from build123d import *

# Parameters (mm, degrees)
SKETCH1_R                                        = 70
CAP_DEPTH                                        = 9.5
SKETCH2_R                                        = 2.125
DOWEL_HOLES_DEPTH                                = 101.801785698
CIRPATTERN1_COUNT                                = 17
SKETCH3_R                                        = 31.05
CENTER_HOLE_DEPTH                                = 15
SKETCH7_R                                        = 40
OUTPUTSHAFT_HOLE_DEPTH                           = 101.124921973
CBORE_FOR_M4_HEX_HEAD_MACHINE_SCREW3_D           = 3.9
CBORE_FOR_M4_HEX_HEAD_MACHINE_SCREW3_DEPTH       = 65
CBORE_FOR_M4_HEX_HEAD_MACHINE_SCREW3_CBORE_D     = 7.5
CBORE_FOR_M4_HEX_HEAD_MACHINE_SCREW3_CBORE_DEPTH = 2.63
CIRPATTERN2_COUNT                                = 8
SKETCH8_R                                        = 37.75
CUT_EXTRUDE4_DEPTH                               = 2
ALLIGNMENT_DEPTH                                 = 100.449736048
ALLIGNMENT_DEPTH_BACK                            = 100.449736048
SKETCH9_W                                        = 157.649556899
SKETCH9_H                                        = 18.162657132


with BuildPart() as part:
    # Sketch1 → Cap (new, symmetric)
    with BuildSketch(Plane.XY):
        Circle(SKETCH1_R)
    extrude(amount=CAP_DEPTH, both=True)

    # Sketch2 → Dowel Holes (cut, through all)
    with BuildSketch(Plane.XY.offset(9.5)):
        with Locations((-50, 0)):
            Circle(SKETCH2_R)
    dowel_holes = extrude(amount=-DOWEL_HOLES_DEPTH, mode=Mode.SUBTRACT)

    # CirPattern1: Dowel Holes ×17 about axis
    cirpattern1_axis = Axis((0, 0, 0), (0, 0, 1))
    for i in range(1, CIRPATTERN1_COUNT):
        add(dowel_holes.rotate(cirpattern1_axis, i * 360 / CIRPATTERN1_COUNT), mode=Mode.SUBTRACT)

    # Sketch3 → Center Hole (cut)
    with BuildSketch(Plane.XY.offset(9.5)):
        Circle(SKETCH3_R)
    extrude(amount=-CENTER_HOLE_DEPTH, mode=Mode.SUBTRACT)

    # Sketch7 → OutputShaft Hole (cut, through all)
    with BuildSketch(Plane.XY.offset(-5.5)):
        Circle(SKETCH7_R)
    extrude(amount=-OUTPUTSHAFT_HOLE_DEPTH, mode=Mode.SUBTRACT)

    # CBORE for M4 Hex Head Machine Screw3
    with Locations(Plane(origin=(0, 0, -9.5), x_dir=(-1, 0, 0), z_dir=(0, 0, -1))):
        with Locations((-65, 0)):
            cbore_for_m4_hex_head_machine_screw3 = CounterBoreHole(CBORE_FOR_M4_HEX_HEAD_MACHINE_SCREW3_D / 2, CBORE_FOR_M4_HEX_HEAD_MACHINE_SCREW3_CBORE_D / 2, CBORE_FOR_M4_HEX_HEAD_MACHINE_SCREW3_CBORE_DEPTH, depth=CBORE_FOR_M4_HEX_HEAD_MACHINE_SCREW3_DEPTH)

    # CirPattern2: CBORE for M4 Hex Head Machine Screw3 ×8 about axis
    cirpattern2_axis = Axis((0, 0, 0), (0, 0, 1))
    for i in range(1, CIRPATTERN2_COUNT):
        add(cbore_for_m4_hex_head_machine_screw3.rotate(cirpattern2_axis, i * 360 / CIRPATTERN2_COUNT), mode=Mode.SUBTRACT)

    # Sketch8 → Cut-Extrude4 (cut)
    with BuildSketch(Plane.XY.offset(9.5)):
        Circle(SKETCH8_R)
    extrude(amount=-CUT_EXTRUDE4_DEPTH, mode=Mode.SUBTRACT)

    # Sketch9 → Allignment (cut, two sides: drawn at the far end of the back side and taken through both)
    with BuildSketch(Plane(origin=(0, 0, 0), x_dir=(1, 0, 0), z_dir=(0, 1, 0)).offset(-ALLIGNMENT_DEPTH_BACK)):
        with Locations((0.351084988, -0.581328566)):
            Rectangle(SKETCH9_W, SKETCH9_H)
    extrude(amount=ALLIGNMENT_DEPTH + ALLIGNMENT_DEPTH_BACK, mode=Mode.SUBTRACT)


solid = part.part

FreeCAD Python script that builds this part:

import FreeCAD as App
import Part
import Sketcher
from FreeCAD import Vector

doc = App.newDocument("Part")
params = doc.addObject("Spreadsheet::Sheet", "Params")
for row, (alias, value) in enumerate([
    ("sketch1_diameter", "140 mm"),
    ("pad1_length", "19 mm"),
    ("sketch2_diameter", "4.25 mm"),
    ("sketch3_diameter", "62.1 mm"),
    ("pocket2_length", "15 mm"),
    ("sketch4_diameter", "80 mm"),
    ("sketch5_diameter", "3.9 mm"),
    ("hole_diameter", "3.9 mm"),
    ("hole_depth", "65 mm"),
    ("hole_cbore_diameter", "7.5 mm"),
    ("hole_cbore_depth", "2.63 mm"),
    ("sketch6_diameter", "75.5 mm"),
    ("pocket4_length", "2 mm"),
], start=1):
    params.set(f"A{row}", alias)
    params.set(f"B{row}", "=" + value)
    params.setAlias(f"B{row}", alias)

body = doc.addObject("PartDesign::Body", "Body")

sketch1 = doc.addObject("Sketcher::SketchObject", "Sketch")
body.addObject(sketch1)
sketch1.AttachmentSupport = (doc.XY_Plane, [""])
sketch1.MapMode = "FlatFace"
sketch1.addGeometry(Part.Circle(Vector(0, 0, 0), Vector(0, 0, 1), 70), False)
sketch1.addConstraint(Sketcher.Constraint("Coincident", 0, 3, -1, 1))
sketch1.addConstraint(Sketcher.Constraint("Diameter", 0, 140.0))
sketch1.setExpression("Constraints[1]", "Params.sketch1_diameter")
pad1 = doc.addObject("PartDesign::Pad", "Pad")
body.addObject(pad1)
pad1.Profile = sketch1
pad1.setExpression("Length", "Params.pad1_length")
pad1.Midplane = True

sketch2 = doc.addObject("Sketcher::SketchObject", "Sketch001")
body.addObject(sketch2)
sketch2.AttachmentSupport = (doc.XY_Plane, [""])
sketch2.MapMode = "FlatFace"
sketch2.AttachmentOffset = App.Placement(Vector(0, 0, 9.5), App.Rotation())
sketch2.addGeometry(Part.Circle(Vector(-50, 0, 0), Vector(0, 0, 1), 2.1), False)
sketch2.addConstraint(Sketcher.Constraint("PointOnObject", 0, 3, -1))
sketch2.addConstraint(Sketcher.Constraint("Diameter", 0, 4.25))
sketch2.addConstraint(Sketcher.Constraint("DistanceX", 0, 3, -1, 1, 50.0))
sketch2.setExpression("Constraints[1]", "Params.sketch2_diameter")
pocket1 = doc.addObject("PartDesign::Pocket", "Pocket")
body.addObject(pocket1)
pocket1.Profile = sketch2
pocket1.Type = "ThroughAll"
doc.recompute()

polarpattern = doc.addObject("PartDesign::PolarPattern", "PolarPattern")
body.addObject(polarpattern)
polarpattern.Originals = [pocket1]
polarpattern.Axis = (doc.Z_Axis, [""])
polarpattern.Angle = 360
polarpattern.Occurrences = 17
body.Tip = polarpattern

sketch3 = doc.addObject("Sketcher::SketchObject", "Sketch002")
body.addObject(sketch3)
sketch3.AttachmentSupport = (doc.XY_Plane, [""])
sketch3.MapMode = "FlatFace"
sketch3.AttachmentOffset = App.Placement(Vector(0, 0, 9.5), App.Rotation())
sketch3.addGeometry(Part.Circle(Vector(0, 0, 0), Vector(0, 0, 1), 31), False)
sketch3.addConstraint(Sketcher.Constraint("Coincident", 0, 3, -1, 1))
sketch3.addConstraint(Sketcher.Constraint("Diameter", 0, 62.1))
sketch3.setExpression("Constraints[1]", "Params.sketch3_diameter")
pocket2 = doc.addObject("PartDesign::Pocket", "Pocket001")
body.addObject(pocket2)
pocket2.Profile = sketch3
pocket2.setExpression("Length", "Params.pocket2_length")

sketch4 = doc.addObject("Sketcher::SketchObject", "Sketch003")
body.addObject(sketch4)
sketch4.AttachmentSupport = (doc.XY_Plane, [""])
sketch4.MapMode = "FlatFace"
sketch4.AttachmentOffset = App.Placement(Vector(0, 0, -5.5), App.Rotation())
sketch4.addGeometry(Part.Circle(Vector(0, 0, 0), Vector(0, 0, 1), 40), False)
sketch4.addConstraint(Sketcher.Constraint("Coincident", 0, 3, -1, 1))
sketch4.addConstraint(Sketcher.Constraint("Diameter", 0, 80.0))
sketch4.setExpression("Constraints[1]", "Params.sketch4_diameter")
pocket3 = doc.addObject("PartDesign::Pocket", "Pocket002")
body.addObject(pocket3)
pocket3.Profile = sketch4
pocket3.Type = "ThroughAll"

sketch5 = doc.addObject("Sketcher::SketchObject", "Sketch004")
body.addObject(sketch5)
sketch5.AttachmentSupport = (doc.XY_Plane, [""])
sketch5.MapMode = "FlatFace"
sketch5.AttachmentOffset = App.Placement(Vector(0, 0, -9.5), App.Rotation())
sketch5.addGeometry(Part.Circle(Vector(65, 0, 0), Vector(0, 0, 1), 1.9), False)
sketch5.addConstraint(Sketcher.Constraint("PointOnObject", 0, 3, -1))
sketch5.addConstraint(Sketcher.Constraint("Diameter", 0, 3.9))
sketch5.addConstraint(Sketcher.Constraint("DistanceX", -1, 1, 0, 3, 65.0))
sketch5.setExpression("Constraints[1]", "Params.sketch5_diameter")
doc.recompute()
hole = doc.addObject("PartDesign::Hole", "Hole")
body.addObject(hole)
hole.Profile = sketch5
hole.ThreadType = "None"
hole.setExpression("Diameter", "Params.hole_diameter")
hole.DepthType = "Dimension"
hole.setExpression("Depth", "Params.hole_depth")
hole.DrillPoint = "Flat"
hole.HoleCutType = "Counterbore"
hole.setExpression("HoleCutDiameter", "Params.hole_cbore_diameter")
hole.setExpression("HoleCutDepth", "Params.hole_cbore_depth")
hole.Reversed = True
doc.recompute()

polarpattern2 = doc.addObject("PartDesign::PolarPattern", "PolarPattern001")
body.addObject(polarpattern2)
polarpattern2.Originals = [hole]
polarpattern2.Axis = (doc.Z_Axis, [""])
polarpattern2.Angle = 360
polarpattern2.Occurrences = 8
body.Tip = polarpattern2

sketch6 = doc.addObject("Sketcher::SketchObject", "Sketch005")
body.addObject(sketch6)
sketch6.AttachmentSupport = (doc.XY_Plane, [""])
sketch6.MapMode = "FlatFace"
sketch6.AttachmentOffset = App.Placement(Vector(0, 0, 9.5), App.Rotation())
sketch6.addGeometry(Part.Circle(Vector(0, 0, 0), Vector(0, 0, 1), 38), False)
sketch6.addConstraint(Sketcher.Constraint("Coincident", 0, 3, -1, 1))
sketch6.addConstraint(Sketcher.Constraint("Diameter", 0, 75.5))
sketch6.setExpression("Constraints[1]", "Params.sketch6_diameter")
pocket4 = doc.addObject("PartDesign::Pocket", "Pocket003")
body.addObject(pocket4)
pocket4.Profile = sketch6
pocket4.setExpression("Length", "Params.pocket4_length")

sketch7 = doc.addObject("Sketcher::SketchObject", "Sketch006")
body.addObject(sketch7)
sketch7.AttachmentSupport = (doc.XZ_Plane, [""])
sketch7.MapMode = "FlatFace"
sketch7.addGeometry(Part.LineSegment(Vector(-78, -8, 0), Vector(-78, 10, 0)), False)
sketch7.addGeometry(Part.LineSegment(Vector(-78, 10, 0), Vector(79, 10, 0)), False)
sketch7.addGeometry(Part.LineSegment(Vector(79, 10, 0), Vector(79, -8, 0)), False)
sketch7.addGeometry(Part.LineSegment(Vector(79, -8, 0), Vector(-78, -8, 0)), False)
sketch7.addConstraint(Sketcher.Constraint("Coincident", 0, 2, 1, 1))
sketch7.addConstraint(Sketcher.Constraint("Coincident", 1, 2, 2, 1))
sketch7.addConstraint(Sketcher.Constraint("Coincident", 2, 2, 3, 1))
sketch7.addConstraint(Sketcher.Constraint("Coincident", 3, 2, 0, 1))
sketch7.addConstraint(Sketcher.Constraint("Vertical", 0))
sketch7.addConstraint(Sketcher.Constraint("Horizontal", 1))
sketch7.addConstraint(Sketcher.Constraint("Vertical", 2))
sketch7.addConstraint(Sketcher.Constraint("Horizontal", 3))
sketch7.addConstraint(Sketcher.Constraint("DistanceY", 2, 2, -1, 1, 8.5))
sketch7.addConstraint(Sketcher.Constraint("DistanceX", 1, 1, 1, 2, 157.649557))
sketch7.addConstraint(Sketcher.Constraint("DistanceY", 0, 1, 0, 2, 18.162657))
sketch7.addConstraint(Sketcher.Constraint("DistanceX", 0, 2, -1, 1, 78.473693))
pocket5 = doc.addObject("PartDesign::Pocket", "Pocket004")
body.addObject(pocket5)
pocket5.Profile = sketch7
pocket5.Type = "ThroughAll"
pocket5.Midplane = True

doc.recompute()
